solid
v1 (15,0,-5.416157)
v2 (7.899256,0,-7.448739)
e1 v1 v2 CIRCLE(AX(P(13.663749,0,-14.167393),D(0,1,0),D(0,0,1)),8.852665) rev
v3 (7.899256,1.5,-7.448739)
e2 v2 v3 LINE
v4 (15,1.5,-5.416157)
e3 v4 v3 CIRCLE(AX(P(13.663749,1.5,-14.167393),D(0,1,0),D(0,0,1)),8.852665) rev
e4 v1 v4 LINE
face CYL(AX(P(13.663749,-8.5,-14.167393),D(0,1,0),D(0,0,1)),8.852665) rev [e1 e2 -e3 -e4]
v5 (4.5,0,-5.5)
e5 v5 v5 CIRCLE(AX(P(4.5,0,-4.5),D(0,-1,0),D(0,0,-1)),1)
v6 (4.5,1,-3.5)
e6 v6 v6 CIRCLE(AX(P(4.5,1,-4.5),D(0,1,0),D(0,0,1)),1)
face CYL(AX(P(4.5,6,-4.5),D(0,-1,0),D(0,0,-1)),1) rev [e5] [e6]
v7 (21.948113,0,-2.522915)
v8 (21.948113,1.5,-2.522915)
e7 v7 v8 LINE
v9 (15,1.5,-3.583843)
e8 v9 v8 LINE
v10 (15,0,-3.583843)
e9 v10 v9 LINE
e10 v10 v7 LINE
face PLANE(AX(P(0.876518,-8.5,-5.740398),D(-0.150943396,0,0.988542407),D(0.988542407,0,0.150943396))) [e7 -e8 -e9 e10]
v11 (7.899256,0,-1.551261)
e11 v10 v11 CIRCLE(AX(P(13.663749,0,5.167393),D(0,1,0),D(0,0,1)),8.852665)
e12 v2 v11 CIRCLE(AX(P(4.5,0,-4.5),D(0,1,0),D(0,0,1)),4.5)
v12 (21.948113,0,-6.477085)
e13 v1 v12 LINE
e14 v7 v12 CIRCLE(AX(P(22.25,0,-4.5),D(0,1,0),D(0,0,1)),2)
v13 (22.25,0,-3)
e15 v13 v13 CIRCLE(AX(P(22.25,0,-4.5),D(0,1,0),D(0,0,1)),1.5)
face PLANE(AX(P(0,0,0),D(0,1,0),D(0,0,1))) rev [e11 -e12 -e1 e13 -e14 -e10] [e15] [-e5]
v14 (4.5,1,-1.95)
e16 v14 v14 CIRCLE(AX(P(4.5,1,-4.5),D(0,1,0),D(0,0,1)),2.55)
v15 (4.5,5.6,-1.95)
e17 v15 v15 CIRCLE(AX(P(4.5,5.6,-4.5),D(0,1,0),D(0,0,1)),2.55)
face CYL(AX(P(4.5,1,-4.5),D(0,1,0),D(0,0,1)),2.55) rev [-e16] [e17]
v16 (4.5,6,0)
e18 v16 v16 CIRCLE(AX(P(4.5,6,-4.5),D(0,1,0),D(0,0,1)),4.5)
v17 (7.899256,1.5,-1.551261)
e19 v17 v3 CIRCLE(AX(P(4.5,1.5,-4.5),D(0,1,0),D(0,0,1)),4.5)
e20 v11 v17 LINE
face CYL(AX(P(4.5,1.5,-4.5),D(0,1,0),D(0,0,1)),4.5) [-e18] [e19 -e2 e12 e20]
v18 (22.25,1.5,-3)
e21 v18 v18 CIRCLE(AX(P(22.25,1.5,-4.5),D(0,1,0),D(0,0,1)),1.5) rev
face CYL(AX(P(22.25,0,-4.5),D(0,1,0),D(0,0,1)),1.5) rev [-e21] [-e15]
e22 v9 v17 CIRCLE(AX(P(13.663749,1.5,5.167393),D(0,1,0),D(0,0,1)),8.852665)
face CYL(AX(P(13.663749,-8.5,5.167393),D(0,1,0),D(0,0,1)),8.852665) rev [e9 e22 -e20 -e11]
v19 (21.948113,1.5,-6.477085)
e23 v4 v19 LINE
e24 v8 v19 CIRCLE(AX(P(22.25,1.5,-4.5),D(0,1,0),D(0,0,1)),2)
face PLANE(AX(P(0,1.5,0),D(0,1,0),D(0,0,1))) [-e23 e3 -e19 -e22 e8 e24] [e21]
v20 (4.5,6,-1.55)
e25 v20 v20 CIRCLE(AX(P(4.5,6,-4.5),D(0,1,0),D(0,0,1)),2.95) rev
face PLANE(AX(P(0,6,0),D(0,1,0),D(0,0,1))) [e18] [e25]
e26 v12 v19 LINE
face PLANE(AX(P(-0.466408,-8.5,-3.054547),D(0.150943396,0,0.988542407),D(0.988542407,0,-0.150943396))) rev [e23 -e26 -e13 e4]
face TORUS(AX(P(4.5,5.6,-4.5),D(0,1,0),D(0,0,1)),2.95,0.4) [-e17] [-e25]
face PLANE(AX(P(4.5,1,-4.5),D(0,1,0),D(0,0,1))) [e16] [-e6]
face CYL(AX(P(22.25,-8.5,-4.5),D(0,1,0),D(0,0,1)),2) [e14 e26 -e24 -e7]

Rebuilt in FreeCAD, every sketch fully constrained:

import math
import FreeCAD as App
import Part
import Sketcher

V = App.Vector
Q = App.Units.Quantity


def edges_at(feature, points):
    """Names of the edges that pass closest to the given points."""
    edges = feature.Shape.Edges
    near = lambda p: min(range(len(edges)), key=lambda i: edges[i].distToShape(Part.Vertex(*p))[0])
    return sorted({f"Edge{near(p) + 1}" for p in points})

doc = App.newDocument("Part")
body = doc.addObject("PartDesign::Body", "Body")

# Sketch on XZ plane
sketch1 = body.newObject("Sketcher::SketchObject", "Sketch")
sketch1.AttachmentSupport = (doc.getObject("XZ_Plane"), [""])
sketch1.MapMode = "FlatFace"
sketch1.addGeometry(Part.LineSegment(V(0, -9, 0), V(0, 0, 0)), False)
sketch1.addGeometry(Part.LineSegment(V(0, 0, 0), V(25, 0, 0)), False)
sketch1.addGeometry(Part.LineSegment(V(25, 0, 0), V(25, -9, 0)), False)
sketch1.addGeometry(Part.LineSegment(V(25, -9, 0), V(0, -9, 0)), False)
sketch1.addConstraint(Sketcher.Constraint("Coincident", 0, 2, 1, 1))
sketch1.addConstraint(Sketcher.Constraint("Coincident", 1, 2, 2, 1))
sketch1.addConstraint(Sketcher.Constraint("Coincident", 2, 2, 3, 1))
sketch1.addConstraint(Sketcher.Constraint("Coincident", 3, 2, 0, 1))
sketch1.addConstraint(Sketcher.Constraint("Vertical", 0))
sketch1.addConstraint(Sketcher.Constraint("Horizontal", 1))
sketch1.addConstraint(Sketcher.Constraint("Vertical", 2))
sketch1.addConstraint(Sketcher.Constraint("Horizontal", 3))
sketch1.addConstraint(Sketcher.Constraint("Coincident", 0, 2, -1, 1))
sketch1.addConstraint(Sketcher.Constraint("DistanceX", 1, 1, 1, 2, Q("25 mm")))
sketch1.addConstraint(Sketcher.Constraint("DistanceY", 0, 1, 0, 2, Q("9 mm")))
pad1 = body.newObject("PartDesign::Pad", "Pad")
pad1.Profile = sketch1
pad1.Length = 6
pad1.Reversed = True

# Sketch on XZ plane
sketch2 = body.newObject("Sketcher::SketchObject", "Sketch001")
sketch2.AttachmentSupport = (doc.getObject("XZ_Plane"), [""])
sketch2.MapMode = "FlatFace"
sketch2.AttachmentOffset = App.Placement(V(0, 0, -6), App.Rotation())
sketch2.addGeometry(Part.Circle(V(4.5, -4.5, 0), V(0, 0, 1), 2.55), False)
sketch2.addConstraint(Sketcher.Constraint("Diameter", 0, Q("5.1 mm")))
sketch2.addConstraint(Sketcher.Constraint("DistanceX", -1, 1, 0, 3, Q("4.5 mm")))
sketch2.addConstraint(Sketcher.Constraint("DistanceY", 0, 3, -1, 1, Q("4.5 mm")))
pocket1 = body.newObject("PartDesign::Pocket", "Pocket")
pocket1.Profile = sketch2
pocket1.Length = 5
pocket1.Reversed = True

# Sketch on XZ plane
sketch3 = body.newObject("Sketcher::SketchObject", "Sketch002")
sketch3.AttachmentSupport = (doc.getObject("XZ_Plane"), [""])
sketch3.MapMode = "FlatFace"
sketch3.AttachmentOffset = App.Placement(V(0, 0, -6), App.Rotation())
sketch3.addGeometry(Part.Circle(V(22.25, -4.5, 0), V(0, 0, 1), 1.5), False)
sketch3.addConstraint(Sketcher.Constraint("Diameter", 0, Q("3 mm")))
sketch3.addConstraint(Sketcher.Constraint("DistanceY", 0, 3, -1, 1, Q("4.5 mm")))
sketch3.addConstraint(Sketcher.Constraint("DistanceX", -1, 1, 0, 3, Q("22.25 mm")))
pocket2 = body.newObject("PartDesign::Pocket", "Pocket001")
pocket2.Profile = sketch3
pocket2.Type = "ThroughAll"
pocket2.Midplane = True

# Sketch on XZ plane
sketch4 = body.newObject("Sketcher::SketchObject", "Sketch003")
sketch4.AttachmentSupport = (doc.getObject("XZ_Plane"), [""])
sketch4.MapMode = "FlatFace"
sketch4.AttachmentOffset = App.Placement(V(0, 0, -6), App.Rotation())
sketch4.addGeometry(Part.LineSegment(V(25, -9, 0), V(4.5, -9, 0)), False)
sketch4.addGeometry(Part.ArcOfCircle(Part.Circle(V(4.5, -4.5, 0), V(0, 0, 1), 4.5), math.radians(-90), math.radians(0)), False)
sketch4.addGeometry(Part.ArcOfCircle(Part.Circle(V(4.5, -4.5, 0), V(0, 0, 1), 4.5), math.radians(0), math.radians(90)), False)
sketch4.addGeometry(Part.LineSegment(V(4.5, 0, 0), V(25, 0, 0)), False)
sketch4.addGeometry(Part.LineSegment(V(25, 0, 0), V(25, -9, 0)), False)
sketch4.addGeometry(Part.Circle(V(22.25, -4.5, 0), V(0, 0, 1), 1.5), False)
sketch4.addConstraint(Sketcher.Constraint("Tangent", 0, 2, 1, 1))
sketch4.addConstraint(Sketcher.Constraint("Tangent", 1, 2, 2, 1))
sketch4.addConstraint(Sketcher.Constraint("Tangent", 2, 2, 3, 1))
sketch4.addConstraint(Sketcher.Constraint("Coincident", 3, 2, 4, 1))
sketch4.addConstraint(Sketcher.Constraint("Coincident", 4, 2, 0, 1))
sketch4.addConstraint(Sketcher.Constraint("Horizontal", 0))
sketch4.addConstraint(Sketcher.Constraint("Horizontal", 3))
sketch4.addConstraint(Sketcher.Constraint("Vertical", 4))
sketch4.addConstraint(Sketcher.Constraint("Equal", 1, 2))
sketch4.addConstraint(Sketcher.Constraint("PointOnObject", 2, 2, -1))
sketch4.addConstraint(Sketcher.Constraint("Horizontal", 2, 3, 5, 3))
sketch4.addConstraint(Sketcher.Constraint("Horizontal", 5, 3, 1, 2))
sketch4.addConstraint(Sketcher.Constraint("Diameter", 5, Q("3 mm")))
sketch4.addConstraint(Sketcher.Constraint("Radius", 1, Q("4.5 mm")))
sketch4.addConstraint(Sketcher.Constraint("DistanceX", 0, 2, 0, 1, Q("20.5 mm")))
sketch4.addConstraint(Sketcher.Constraint("DistanceX", -1, 1, 1, 2, Q("9 mm")))
sketch4.addConstraint(Sketcher.Constraint("DistanceX", -1, 1, 5, 3, Q("22.25 mm")))
pocket3 = body.newObject("PartDesign::Pocket", "Pocket002")
pocket3.Profile = sketch4
pocket3.Length = 4.5
pocket3.Reversed = True

# Sketch on XZ plane
sketch5 = body.newObject("Sketcher::SketchObject", "Sketch004")
sketch5.AttachmentSupport = (doc.getObject("XZ_Plane"), [""])
sketch5.MapMode = "FlatFace"
sketch5.AttachmentOffset = App.Placement(V(0, 0, -6), App.Rotation())
sketch5.addGeometry(Part.ArcOfCircle(Part.Circle(V(4.5, -4.5, 0), V(0, 0, 1), 4.5), math.radians(-180), math.radians(-90)), False)
sketch5.addGeometry(Part.LineSegment(V(4.5, -9, 0), V(0, -9, 0)), False)
sketch5.addGeometry(Part.LineSegment(V(0, -9, 0), V(0, -4.5, 0)), False)
sketch5.addGeometry(Part.ArcOfCircle(Part.Circle(V(4.5, -4.5, 0), V(0, 0, 1), 4.5), math.radians(90), math.radians(180)), False)
sketch5.addGeometry(Part.LineSegment(V(0, -4.5, 0), V(0, 0, 0)), False)
sketch5.addGeometry(Part.LineSegment(V(0, 0, 0), V(4.5, 0, 0)), False)
sketch5.addConstraint(Sketcher.Constraint("Tangent", 0, 2, 1, 1))
sketch5.addConstraint(Sketcher.Constraint("Coincident", 1, 2, 2, 1))
sketch5.addConstraint(Sketcher.Constraint("Tangent", 2, 2, 0, 1))
sketch5.addConstraint(Sketcher.Constraint("Tangent", 3, 2, 4, 1))
sketch5.addConstraint(Sketcher.Constraint("Coincident", 4, 2, 5, 1))
sketch5.addConstraint(Sketcher.Constraint("Tangent", 5, 2, 3, 1))
sketch5.addConstraint(Sketcher.Constraint("Horizontal", 1))
sketch5.addConstraint(Sketcher.Constraint("Vertical", 2))
sketch5.addConstraint(Sketcher.Constraint("Vertical", 4))
sketch5.addConstraint(Sketcher.Constraint("Horizontal", 5))
sketch5.addConstraint(Sketcher.Constraint("Coincident", 4, 2, -1, 1))
sketch5.addConstraint(Sketcher.Constraint("Coincident", 3, 3, 0, 3))
sketch5.addConstraint(Sketcher.Constraint("Equal", 0, 3))
sketch5.addConstraint(Sketcher.Constraint("Radius", 0, Q("4.5 mm")))
pocket4 = body.newObject("PartDesign::Pocket", "Pocket003")
pocket4.Profile = sketch5
pocket4.Type = "ThroughAll"
pocket4.Reversed = True
doc.recompute()

fillet = body.newObject("PartDesign::Fillet", "Fillet")
fillet.Base = (pocket4, edges_at(pocket4, [(4.5, 6, -7.05)]))
fillet.Radius = 0.4

# Sketch on XZ plane
sketch6 = body.newObject("Sketcher::SketchObject", "Sketch005")
sketch6.AttachmentSupport = (doc.getObject("XZ_Plane"), [""])
sketch6.MapMode = "FlatFace"
sketch6.addGeometry(Part.Circle(V(4.5, -4.5, 0), V(0, 0, 1), 1), False)
sketch6.addConstraint(Sketcher.Constraint("Diameter", 0, Q("2 mm")))
sketch6.addConstraint(Sketcher.Constraint("DistanceX", -1, 1, 0, 3, Q("4.5 mm")))
sketch6.addConstraint(Sketcher.Constraint("DistanceY", 0, 3, -1, 1, Q("4.5 mm")))
pocket5 = body.newObject("PartDesign::Pocket", "Pocket004")
pocket5.Profile = sketch6
pocket5.Type = "ThroughAll"

# Sketch on XZ plane
sketch7 = body.newObject("Sketcher::SketchObject", "Sketch006")
sketch7.AttachmentSupport = (doc.getObject("XZ_Plane"), [""])
sketch7.MapMode = "FlatFace"
sketch7.AttachmentOffset = App.Placement(V(0, 0, -1.5), App.Rotation())
sketch7.addGeometry(Part.LineSegment(V(25, -9, 0), V(4.5, -9, 0)), False)
sketch7.addGeometry(Part.ArcOfCircle(Part.Circle(V(4.5, -4.5, 0), V(0, 0, 1), 4.5), math.radians(-90), math.radians(-40.940531)), False)
sketch7.addGeometry(Part.ArcOfCircle(Part.Circle(V(13.663749, -14.167393, 0), V(0, 0, 1), 8.852665), math.radians(81.318398), math.radians(130.629045)), False)
sketch7.addGeometry(Part.LineSegment(V(15, -5.416157, 0), V(21.948113, -6.477085, 0)), False)
sketch7.addGeometry(Part.ArcOfCircle(Part.Circle(V(22.25, -4.5, 0), V(0, 0, 1), 2), math.radians(-98.681601), math.radians(98.681602)), False)
sketch7.addGeometry(Part.LineSegment(V(21.948113, -2.522915, 0), V(15, -3.583843, 0)), False)
sketch7.addGeometry(Part.ArcOfCircle(Part.Circle(V(13.663749, 5.167393, 0), V(0, 0, 1), 8.852665), math.radians(-130.629045), math.radians(-81.318398)), False)
sketch7.addGeometry(Part.ArcOfCircle(Part.Circle(V(4.5, -4.5, 0), V(0, 0, 1), 4.5), math.radians(40.940531), math.radians(90)), False)
sketch7.addGeometry(Part.LineSegment(V(4.5, 0, 0), V(25, 0, 0)), False)
sketch7.addGeometry(Part.LineSegment(V(25, 0, 0), V(25, -9, 0)), False)
sketch7.addConstraint(Sketcher.Constraint("Tangent", 0, 2, 1, 1))
sketch7.addConstraint(Sketcher.Constraint("Coincident", 1, 2, 2, 2))
sketch7.addConstraint(Sketcher.Constraint("Tangent", 2, 1, 3, 1))
sketch7.addConstraint(Sketcher.Constraint("Tangent", 3, 2, 4, 1))
sketch7.addConstraint(Sketcher.Constraint("Tangent", 4, 2, 5, 1))
sketch7.addConstraint(Sketcher.Constraint("Tangent", 5, 2, 6, 2))
sketch7.addConstraint(Sketcher.Constraint("Coincident", 6, 1, 7, 1))
sketch7.addConstraint(Sketcher.Constraint("Tangent", 7, 2, 8, 1))
sketch7.addConstraint(Sketcher.Constraint("Coincident", 8, 2, 9, 1))
sketch7.addConstraint(Sketcher.Constraint("Coincident", 9, 2, 0, 1))
sketch7.addConstraint(Sketcher.Constraint("Horizontal", 0))
sketch7.addConstraint(Sketcher.Constraint("Horizontal", 8))
sketch7.addConstraint(Sketcher.Constraint("Vertical", 9))
sketch7.addConstraint(Sketcher.Constraint("Coincident", 7, 3, 1, 3))
sketch7.addConstraint(Sketcher.Constraint("Equal", 2, 6))
sketch7.addConstraint(Sketcher.Constraint("Equal", 1, 7))
sketch7.addConstraint(Sketcher.Constraint("PointOnObject", 7, 2, -1))
sketch7.addConstraint(Sketcher.Constraint("Horizontal", 1, 3, 4, 3))
sketch7.addConstraint(Sketcher.Constraint("Vertical", 2, 3, 6, 3))
sketch7.addConstraint(Sketcher.Constraint("Vertical", 3, 2, 4, 2))
sketch7.addConstraint(Sketcher.Constraint("Radius", 4, Q("2 mm")))
sketch7.addConstraint(Sketcher.Constraint("Radius", 1, Q("4.5 mm")))
sketch7.addConstraint(Sketcher.Constraint("DistanceX", 0, 2, 0, 1, Q("20.5 mm")))
sketch7.addConstraint(Sketcher.Constraint("DistanceX", -1, 1, 2, 1, Q("15 mm")))
sketch7.addConstraint(Sketcher.Constraint("DistanceX", -1, 1, 8, 2, Q("25 mm")))
sketch7.addConstraint(Sketcher.Constraint("DistanceX", -1, 1, 4, 3, Q("22.25 mm")))
sketch7.addConstraint(Sketcher.Constraint("Radius", 2, Q("8.852665 mm")))
sketch7.addConstraint(Sketcher.Constraint("DistanceX", -1, 1, 2, 3, Q("13.663749 mm")))
pocket6 = body.newObject("PartDesign::Pocket", "Pocket005")
pocket6.Profile = sketch7
pocket6.Length = 10
pocket6.Reversed = True

doc.recompute()
